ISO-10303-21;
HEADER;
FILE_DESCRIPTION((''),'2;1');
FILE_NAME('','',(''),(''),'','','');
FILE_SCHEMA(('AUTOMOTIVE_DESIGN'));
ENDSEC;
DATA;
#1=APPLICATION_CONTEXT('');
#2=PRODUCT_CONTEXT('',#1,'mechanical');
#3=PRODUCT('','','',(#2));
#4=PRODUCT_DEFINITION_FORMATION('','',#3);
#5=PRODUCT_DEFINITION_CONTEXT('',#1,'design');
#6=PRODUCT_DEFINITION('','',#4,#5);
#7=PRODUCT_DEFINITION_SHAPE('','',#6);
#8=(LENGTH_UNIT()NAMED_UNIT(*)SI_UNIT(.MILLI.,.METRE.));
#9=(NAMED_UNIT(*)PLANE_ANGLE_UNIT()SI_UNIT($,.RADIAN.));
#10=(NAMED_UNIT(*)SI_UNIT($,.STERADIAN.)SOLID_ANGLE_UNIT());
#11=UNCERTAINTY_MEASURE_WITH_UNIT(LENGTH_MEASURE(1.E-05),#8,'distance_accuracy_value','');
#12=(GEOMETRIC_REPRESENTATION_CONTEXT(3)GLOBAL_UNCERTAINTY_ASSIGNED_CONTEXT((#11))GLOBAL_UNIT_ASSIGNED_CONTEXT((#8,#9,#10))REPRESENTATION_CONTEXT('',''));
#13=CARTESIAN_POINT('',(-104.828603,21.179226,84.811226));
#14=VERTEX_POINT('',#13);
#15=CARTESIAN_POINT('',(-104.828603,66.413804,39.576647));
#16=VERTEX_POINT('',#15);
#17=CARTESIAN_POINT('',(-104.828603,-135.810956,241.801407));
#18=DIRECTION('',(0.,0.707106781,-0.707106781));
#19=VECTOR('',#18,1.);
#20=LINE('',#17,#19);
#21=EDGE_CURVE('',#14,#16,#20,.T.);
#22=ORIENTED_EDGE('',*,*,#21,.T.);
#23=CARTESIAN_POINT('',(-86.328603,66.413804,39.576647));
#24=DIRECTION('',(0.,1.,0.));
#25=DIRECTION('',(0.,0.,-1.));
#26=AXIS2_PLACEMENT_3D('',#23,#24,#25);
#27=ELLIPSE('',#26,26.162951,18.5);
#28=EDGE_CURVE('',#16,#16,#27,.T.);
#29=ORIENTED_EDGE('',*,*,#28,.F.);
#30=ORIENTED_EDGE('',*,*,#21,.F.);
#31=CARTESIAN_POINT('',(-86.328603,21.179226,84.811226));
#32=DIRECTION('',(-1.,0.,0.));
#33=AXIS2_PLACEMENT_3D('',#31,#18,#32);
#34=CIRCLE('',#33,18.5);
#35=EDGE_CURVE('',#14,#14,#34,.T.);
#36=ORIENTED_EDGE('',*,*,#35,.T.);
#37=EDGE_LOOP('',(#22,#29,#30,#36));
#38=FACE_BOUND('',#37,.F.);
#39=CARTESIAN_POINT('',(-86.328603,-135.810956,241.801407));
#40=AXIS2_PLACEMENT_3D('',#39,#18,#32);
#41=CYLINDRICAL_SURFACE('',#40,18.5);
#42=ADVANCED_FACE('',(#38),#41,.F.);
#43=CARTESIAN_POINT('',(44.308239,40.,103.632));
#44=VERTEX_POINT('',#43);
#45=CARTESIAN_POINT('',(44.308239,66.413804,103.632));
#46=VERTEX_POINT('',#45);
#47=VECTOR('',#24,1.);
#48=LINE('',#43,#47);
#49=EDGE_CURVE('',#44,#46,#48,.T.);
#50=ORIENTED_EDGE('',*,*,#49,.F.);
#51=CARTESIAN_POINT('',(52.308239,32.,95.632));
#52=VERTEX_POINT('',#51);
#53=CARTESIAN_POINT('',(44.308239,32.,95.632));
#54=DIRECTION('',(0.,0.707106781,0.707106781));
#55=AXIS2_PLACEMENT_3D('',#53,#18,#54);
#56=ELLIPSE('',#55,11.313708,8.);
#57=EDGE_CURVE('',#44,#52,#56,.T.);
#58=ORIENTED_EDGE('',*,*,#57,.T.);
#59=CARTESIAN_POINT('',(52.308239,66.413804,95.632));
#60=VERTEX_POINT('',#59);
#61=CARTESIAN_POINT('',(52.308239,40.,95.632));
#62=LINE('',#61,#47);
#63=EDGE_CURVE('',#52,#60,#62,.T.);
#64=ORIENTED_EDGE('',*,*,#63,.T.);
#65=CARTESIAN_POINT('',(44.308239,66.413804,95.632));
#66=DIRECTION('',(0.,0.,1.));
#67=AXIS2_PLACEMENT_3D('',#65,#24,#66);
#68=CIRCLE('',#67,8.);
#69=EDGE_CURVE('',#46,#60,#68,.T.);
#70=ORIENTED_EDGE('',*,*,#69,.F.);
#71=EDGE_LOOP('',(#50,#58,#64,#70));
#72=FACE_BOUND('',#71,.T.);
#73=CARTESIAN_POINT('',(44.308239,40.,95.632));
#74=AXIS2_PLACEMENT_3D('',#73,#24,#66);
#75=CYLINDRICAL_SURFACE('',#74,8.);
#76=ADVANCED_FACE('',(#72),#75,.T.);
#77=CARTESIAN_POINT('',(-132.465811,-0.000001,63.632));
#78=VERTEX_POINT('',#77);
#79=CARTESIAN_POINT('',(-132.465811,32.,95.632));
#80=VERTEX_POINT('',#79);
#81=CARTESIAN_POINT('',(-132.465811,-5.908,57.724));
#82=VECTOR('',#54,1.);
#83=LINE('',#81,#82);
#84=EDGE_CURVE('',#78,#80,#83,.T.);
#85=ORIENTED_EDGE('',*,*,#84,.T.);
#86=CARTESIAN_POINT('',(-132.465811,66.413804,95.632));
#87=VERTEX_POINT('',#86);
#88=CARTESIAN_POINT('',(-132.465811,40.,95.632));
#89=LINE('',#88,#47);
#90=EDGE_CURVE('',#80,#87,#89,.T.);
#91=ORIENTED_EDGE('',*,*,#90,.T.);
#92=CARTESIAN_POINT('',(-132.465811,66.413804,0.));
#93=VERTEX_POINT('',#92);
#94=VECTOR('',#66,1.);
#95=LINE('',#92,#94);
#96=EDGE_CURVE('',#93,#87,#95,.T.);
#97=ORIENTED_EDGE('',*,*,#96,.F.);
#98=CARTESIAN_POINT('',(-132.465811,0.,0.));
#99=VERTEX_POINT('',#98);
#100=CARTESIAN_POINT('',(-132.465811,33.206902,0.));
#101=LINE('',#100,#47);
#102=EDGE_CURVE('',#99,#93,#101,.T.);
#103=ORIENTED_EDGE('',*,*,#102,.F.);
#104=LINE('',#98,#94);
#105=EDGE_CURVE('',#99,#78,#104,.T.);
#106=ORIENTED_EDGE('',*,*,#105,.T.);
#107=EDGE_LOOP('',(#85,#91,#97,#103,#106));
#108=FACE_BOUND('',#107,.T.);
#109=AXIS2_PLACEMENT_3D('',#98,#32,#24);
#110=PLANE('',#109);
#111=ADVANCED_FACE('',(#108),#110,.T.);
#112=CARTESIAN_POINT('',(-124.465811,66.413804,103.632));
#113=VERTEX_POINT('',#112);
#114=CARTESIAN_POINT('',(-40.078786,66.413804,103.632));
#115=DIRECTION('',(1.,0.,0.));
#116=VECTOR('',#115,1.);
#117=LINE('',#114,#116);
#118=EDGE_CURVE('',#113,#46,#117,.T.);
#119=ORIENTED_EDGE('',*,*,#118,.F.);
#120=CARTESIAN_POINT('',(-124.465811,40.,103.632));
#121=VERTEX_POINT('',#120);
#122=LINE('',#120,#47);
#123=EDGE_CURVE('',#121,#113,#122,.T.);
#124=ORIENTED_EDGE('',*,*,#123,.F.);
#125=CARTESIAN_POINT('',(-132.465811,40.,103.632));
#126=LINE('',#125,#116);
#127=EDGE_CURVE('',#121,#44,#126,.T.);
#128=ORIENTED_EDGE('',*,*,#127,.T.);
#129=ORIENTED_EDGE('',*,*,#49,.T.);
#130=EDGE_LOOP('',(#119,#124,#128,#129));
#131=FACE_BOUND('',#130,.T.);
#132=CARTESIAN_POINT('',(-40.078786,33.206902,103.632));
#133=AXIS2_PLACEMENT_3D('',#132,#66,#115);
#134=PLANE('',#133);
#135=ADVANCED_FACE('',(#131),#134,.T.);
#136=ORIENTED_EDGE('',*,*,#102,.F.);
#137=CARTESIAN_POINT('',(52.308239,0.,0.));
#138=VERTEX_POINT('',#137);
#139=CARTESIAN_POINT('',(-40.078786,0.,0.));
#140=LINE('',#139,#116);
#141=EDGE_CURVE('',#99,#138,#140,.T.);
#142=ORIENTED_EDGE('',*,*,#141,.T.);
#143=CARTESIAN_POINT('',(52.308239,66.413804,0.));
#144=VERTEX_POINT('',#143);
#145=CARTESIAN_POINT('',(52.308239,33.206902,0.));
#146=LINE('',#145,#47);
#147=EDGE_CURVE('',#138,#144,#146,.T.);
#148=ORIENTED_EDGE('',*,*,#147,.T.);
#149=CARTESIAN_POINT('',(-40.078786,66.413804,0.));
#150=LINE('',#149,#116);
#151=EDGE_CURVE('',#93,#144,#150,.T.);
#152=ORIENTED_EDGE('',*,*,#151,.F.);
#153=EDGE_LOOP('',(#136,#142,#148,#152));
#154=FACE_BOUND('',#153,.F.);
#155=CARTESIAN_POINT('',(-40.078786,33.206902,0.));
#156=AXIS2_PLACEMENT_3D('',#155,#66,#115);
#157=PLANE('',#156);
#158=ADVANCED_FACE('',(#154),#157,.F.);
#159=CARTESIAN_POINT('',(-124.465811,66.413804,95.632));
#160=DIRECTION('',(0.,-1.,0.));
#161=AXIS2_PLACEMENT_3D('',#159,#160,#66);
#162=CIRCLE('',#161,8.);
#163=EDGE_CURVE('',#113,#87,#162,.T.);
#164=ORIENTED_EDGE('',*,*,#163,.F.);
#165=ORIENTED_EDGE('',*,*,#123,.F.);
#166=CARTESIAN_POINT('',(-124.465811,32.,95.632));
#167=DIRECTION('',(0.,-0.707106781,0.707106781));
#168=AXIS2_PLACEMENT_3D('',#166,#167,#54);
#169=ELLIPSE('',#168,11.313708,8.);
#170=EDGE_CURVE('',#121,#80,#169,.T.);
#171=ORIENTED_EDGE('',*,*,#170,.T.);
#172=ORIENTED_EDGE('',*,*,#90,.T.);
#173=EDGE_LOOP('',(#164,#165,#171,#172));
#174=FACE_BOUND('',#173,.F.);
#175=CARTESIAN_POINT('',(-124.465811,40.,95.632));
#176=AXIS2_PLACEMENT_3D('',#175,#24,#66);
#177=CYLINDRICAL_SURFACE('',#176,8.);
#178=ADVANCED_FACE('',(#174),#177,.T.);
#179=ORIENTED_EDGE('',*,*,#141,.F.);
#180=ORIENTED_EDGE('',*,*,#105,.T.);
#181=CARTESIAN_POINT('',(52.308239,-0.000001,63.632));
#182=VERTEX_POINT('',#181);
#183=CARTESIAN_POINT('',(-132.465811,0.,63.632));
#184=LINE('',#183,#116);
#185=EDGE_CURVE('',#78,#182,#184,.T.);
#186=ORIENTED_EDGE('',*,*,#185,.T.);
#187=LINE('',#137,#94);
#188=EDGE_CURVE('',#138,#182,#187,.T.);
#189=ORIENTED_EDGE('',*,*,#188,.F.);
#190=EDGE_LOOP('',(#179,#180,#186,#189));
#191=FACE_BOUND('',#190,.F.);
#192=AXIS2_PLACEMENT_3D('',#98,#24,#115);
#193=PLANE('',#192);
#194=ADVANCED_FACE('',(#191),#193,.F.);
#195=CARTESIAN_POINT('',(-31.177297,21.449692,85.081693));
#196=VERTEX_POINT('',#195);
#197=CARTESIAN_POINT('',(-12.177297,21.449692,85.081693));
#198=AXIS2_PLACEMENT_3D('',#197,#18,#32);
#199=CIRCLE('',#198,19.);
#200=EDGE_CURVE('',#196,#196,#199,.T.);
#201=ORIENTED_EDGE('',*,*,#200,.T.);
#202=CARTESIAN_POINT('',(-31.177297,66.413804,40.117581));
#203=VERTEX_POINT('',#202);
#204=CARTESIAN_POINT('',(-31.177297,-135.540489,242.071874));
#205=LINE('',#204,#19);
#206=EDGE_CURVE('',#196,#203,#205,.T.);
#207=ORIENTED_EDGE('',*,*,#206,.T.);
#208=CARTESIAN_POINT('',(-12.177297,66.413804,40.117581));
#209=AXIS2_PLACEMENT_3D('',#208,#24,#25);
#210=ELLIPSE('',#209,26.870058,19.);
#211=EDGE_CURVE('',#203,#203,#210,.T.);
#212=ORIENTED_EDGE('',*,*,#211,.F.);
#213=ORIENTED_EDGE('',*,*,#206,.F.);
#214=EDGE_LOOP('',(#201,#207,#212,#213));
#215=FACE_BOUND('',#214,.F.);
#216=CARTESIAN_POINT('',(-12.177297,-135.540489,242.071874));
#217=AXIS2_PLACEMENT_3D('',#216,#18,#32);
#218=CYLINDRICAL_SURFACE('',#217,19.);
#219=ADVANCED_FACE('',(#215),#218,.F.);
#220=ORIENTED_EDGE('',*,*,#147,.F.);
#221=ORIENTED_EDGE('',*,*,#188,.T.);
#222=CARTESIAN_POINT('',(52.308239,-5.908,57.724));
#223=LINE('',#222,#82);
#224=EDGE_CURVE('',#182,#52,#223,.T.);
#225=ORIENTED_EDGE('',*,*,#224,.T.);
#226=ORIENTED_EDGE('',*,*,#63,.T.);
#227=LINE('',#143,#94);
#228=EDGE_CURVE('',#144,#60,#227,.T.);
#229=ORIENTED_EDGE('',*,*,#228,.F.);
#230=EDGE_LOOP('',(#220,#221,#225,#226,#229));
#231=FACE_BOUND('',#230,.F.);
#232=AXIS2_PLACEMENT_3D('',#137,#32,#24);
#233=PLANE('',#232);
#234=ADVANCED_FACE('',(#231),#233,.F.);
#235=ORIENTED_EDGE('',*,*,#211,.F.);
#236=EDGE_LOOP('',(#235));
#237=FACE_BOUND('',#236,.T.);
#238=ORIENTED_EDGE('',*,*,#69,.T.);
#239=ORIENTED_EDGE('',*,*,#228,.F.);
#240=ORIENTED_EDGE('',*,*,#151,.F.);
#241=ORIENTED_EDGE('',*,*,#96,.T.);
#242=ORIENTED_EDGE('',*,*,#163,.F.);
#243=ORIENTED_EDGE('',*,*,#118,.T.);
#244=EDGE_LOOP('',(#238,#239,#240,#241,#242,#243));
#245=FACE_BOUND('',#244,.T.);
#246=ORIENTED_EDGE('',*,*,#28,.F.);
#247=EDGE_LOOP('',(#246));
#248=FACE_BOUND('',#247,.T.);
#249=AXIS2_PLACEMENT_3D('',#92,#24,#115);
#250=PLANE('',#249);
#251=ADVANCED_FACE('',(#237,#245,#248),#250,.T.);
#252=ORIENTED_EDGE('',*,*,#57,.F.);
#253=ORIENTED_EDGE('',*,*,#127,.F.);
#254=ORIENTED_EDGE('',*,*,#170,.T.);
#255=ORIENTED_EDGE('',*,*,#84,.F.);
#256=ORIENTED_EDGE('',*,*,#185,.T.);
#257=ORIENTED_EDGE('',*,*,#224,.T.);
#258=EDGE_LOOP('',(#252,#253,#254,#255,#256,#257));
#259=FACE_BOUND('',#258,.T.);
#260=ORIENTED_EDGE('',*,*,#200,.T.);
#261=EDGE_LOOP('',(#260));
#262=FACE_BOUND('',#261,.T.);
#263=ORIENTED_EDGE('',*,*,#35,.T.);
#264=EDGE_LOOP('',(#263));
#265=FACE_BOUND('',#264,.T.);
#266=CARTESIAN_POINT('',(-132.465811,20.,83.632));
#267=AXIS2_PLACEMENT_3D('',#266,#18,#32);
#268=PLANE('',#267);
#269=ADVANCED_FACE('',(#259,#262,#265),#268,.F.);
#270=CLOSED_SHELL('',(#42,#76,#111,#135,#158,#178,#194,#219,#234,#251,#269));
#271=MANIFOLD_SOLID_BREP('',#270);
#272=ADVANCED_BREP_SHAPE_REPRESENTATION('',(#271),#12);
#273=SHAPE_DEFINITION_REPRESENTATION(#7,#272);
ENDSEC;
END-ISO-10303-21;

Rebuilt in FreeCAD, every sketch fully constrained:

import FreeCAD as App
import Part
import Sketcher
from FreeCAD import Vector
Q = App.Units.Quantity


def edges_at(feature, points):
    """Names of the edges that pass closest to the given points."""
    edges = feature.Shape.Edges
    near = lambda p: min(range(len(edges)), key=lambda i: edges[i].distToShape(Part.Vertex(*p))[0])
    return sorted({f"Edge{near(p) + 1}" for p in points})


def add_polygon(sketch, points):
    """Adds a closed chain of lines whose ends are joined by coincident constraints."""
    first, n = sketch.GeometryCount, len(points)
    for a, b in zip(points, points[1:] + points[:1]):
        sketch.addGeometry(Part.LineSegment(App.Vector(*a, 0), App.Vector(*b, 0)), False)
    for i in range(n):
        sketch.addConstraint(Sketcher.Constraint("Coincident", first + i, 2, first + (i + 1) % n, 1))

doc = App.newDocument("Part")
params = doc.addObject("Spreadsheet::Sheet", "Params")
for row, (alias, value) in enumerate([
    ("pad1_length", "103.632 mm"),
    ("chamfer_size", "40 mm"),
    ("sketch2_diameter", "37 mm"),
    ("hole_diameter", "37 mm"),
    ("sketch3_diameter", "38 mm"),
    ("hole2_diameter", "38 mm"),
    ("fillet_radius", "8 mm"),
    ("fillet2_radius", "8 mm"),
], start=1):
    params.set(f"A{row}", alias)
    params.set(f"B{row}", "=" + value)
    params.setAlias(f"B{row}", alias)

body = doc.addObject("PartDesign::Body", "Body")

# Sketch on XY plane
sketch1 = body.newObject("Sketcher::SketchObject", "Sketch")
sketch1.AttachmentSupport = (doc.getObject("XY_Plane"), [""])
sketch1.MapMode = "FlatFace"
add_polygon(sketch1, [(-132, 66), (-132, 0), (52, 0), (52, 66)])  # lines 0-3
sketch1.addConstraint(Sketcher.Constraint("Vertical", 0))
sketch1.addConstraint(Sketcher.Constraint("Horizontal", 1))
sketch1.addConstraint(Sketcher.Constraint("Vertical", 2))
sketch1.addConstraint(Sketcher.Constraint("Horizontal", 3))
sketch1.addConstraint(Sketcher.Constraint("PointOnObject", 0, 2, -1))
sketch1.addConstraint(Sketcher.Constraint("DistanceX", 1, 1, 1, 2, Q("184.774049 mm")))
sketch1.addConstraint(Sketcher.Constraint("DistanceY", 0, 2, 0, 1, Q("66.413805 mm")))
sketch1.addConstraint(Sketcher.Constraint("DistanceX", 0, 2, -1, 1, Q("132.465811 mm")))
pad1 = body.newObject("PartDesign::Pad", "Pad")
pad1.Profile = sketch1
pad1.setExpression("Length", "Params.pad1_length")
doc.recompute()

chamfer = body.newObject("PartDesign::Chamfer", "Chamfer")
chamfer.Base = (pad1, edges_at(pad1, [(-40.079, 0, 103.632)]))
chamfer.setExpression("Size", "Params.chamfer_size")

# Sketch on an angled plane
sketch2 = body.newObject("Sketcher::SketchObject", "Sketch001")
sketch2.Placement = App.Placement(Vector(0, -31.816, 31.816), App.Rotation(Vector(1, 0, 0), Vector(0, 0.707106781, 0.707106781), Vector(0, -0.707106781, 0.707106781), "ZXY"))
sketch2.addGeometry(Part.Circle(Vector(-86, 75, 0), Vector(0, 0, 1), 18), False)
sketch2.addConstraint(Sketcher.Constraint("Diameter", 0, Q("37 mm")))
sketch2.addConstraint(Sketcher.Constraint("DistanceX", 0, 3, -1, 1, Q("86.328603 mm")))
sketch2.addConstraint(Sketcher.Constraint("DistanceY", -1, 1, 0, 3, Q("74.946567 mm")))
sketch2.setExpression("Constraints[0]", "Params.sketch2_diameter")
doc.recompute()
hole = body.newObject("PartDesign::Hole", "Hole")
hole.Profile = sketch2
hole.ThreadType = "None"
hole.setExpression("Diameter", "Params.hole_diameter")
hole.DepthType = "ThroughAll"

# Sketch on an angled plane
sketch3 = body.newObject("Sketcher::SketchObject", "Sketch002")
sketch3.Placement = App.Placement(Vector(0, -31.816, 31.816), App.Rotation(Vector(1, 0, 0), Vector(0, 0.707106781, 0.707106781), Vector(0, -0.707106781, 0.707106781), "ZXY"))
sketch3.addGeometry(Part.Circle(Vector(-12, 75, 0), Vector(0, 0, 1), 19), False)
sketch3.addConstraint(Sketcher.Constraint("Diameter", 0, Q("38 mm")))
sketch3.addConstraint(Sketcher.Constraint("DistanceX", 0, 3, -1, 1, Q("12.177297 mm")))
sketch3.addConstraint(Sketcher.Constraint("DistanceY", -1, 1, 0, 3, Q("75.329065 mm")))
sketch3.setExpression("Constraints[0]", "Params.sketch3_diameter")
doc.recompute()
hole2 = body.newObject("PartDesign::Hole", "Hole001")
hole2.Profile = sketch3
hole2.ThreadType = "None"
hole2.setExpression("Diameter", "Params.hole2_diameter")
hole2.DepthType = "ThroughAll"
doc.recompute()

fillet = body.newObject("PartDesign::Fillet", "Fillet")
fillet.Base = (hole2, edges_at(hole2, [(52.308, 53.207, 103.632)]))
fillet.setExpression("Radius", "Params.fillet_radius")
doc.recompute()

fillet2 = body.newObject("PartDesign::Fillet", "Fillet001")
fillet2.Base = (fillet, edges_at(fillet, [(-132.466, 53.207, 103.632)]))
fillet2.setExpression("Radius", "Params.fillet2_radius")

doc.recompute()
